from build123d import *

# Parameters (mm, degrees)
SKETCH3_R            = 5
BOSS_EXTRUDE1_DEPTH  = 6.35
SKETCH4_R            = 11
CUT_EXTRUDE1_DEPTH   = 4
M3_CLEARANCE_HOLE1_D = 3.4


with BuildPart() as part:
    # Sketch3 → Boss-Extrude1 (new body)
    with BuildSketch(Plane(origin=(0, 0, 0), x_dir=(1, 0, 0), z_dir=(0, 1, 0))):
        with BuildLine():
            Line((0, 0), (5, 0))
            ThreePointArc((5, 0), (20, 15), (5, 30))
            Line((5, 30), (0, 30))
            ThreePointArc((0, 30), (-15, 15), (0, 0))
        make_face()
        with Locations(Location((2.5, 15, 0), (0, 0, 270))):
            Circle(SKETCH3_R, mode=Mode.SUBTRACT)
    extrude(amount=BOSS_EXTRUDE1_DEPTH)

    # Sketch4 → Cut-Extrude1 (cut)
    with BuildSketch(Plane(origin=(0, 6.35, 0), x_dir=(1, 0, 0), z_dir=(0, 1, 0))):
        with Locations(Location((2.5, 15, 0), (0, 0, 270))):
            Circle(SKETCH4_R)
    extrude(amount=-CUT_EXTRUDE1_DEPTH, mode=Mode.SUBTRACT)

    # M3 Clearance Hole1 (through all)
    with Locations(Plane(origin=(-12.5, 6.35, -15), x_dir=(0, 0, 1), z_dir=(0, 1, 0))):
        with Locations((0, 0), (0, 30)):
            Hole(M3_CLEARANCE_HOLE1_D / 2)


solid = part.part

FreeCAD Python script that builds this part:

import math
import FreeCAD as App
import Part
import Sketcher
from FreeCAD import Vector
Q = App.Units.Quantity

doc = App.newDocument("Part")
body = doc.addObject("PartDesign::Body", "Body")

# Sketch on XZ plane
sketch1 = doc.addObject("Sketcher::SketchObject", "Sketch")
body.addObject(sketch1)
sketch1.AttachmentSupport = (doc.XZ_Plane, [""])
sketch1.MapMode = "FlatFace"
sketch1.addGeometry([
    Part.LineSegment(Vector(0, 0, 0), Vector(5, 0, 0)),  # 0
    Part.ArcOfCircle(Part.Circle(Vector(5, -15, 0), Vector(0, 0, 1), 15), math.radians(-90), math.radians(90)),  # 1
    Part.LineSegment(Vector(5, -30, 0), Vector(0, -30, 0)),  # 2
    Part.ArcOfCircle(Part.Circle(Vector(0, -15, 0), Vector(0, 0, 1), 15), math.radians(90), math.radians(270)),  # 3
    Part.Circle(Vector(2, -15, 0), Vector(0, 0, 1), 5),  # 4
], False)
sketch1.addConstraint([
    Sketcher.Constraint("Tangent", 0, 2, 1, 2),
    Sketcher.Constraint("Tangent", 1, 1, 2, 1),
    Sketcher.Constraint("Tangent", 2, 2, 3, 2),
    Sketcher.Constraint("Tangent", 3, 1, 0, 1),
    Sketcher.Constraint("Horizontal", 0),
    Sketcher.Constraint("Horizontal", 2),
    Sketcher.Constraint("Coincident", 3, 1, -1, 1),
    Sketcher.Constraint("Horizontal", 3, 3, 4, 3),
    Sketcher.Constraint("Diameter", 4, Q("10 mm")),
    Sketcher.Constraint("Radius", 1, Q("15 mm")),
    Sketcher.Constraint("DistanceX", 0, 1, 0, 2, Q("5 mm")),
    Sketcher.Constraint("DistanceX", -1, 1, 4, 3, Q("2.5 mm")),
])
pad1 = doc.addObject("PartDesign::Pad", "Pad")
body.addObject(pad1)
pad1.Profile = sketch1
pad1.Length = 6.35
pad1.Reversed = True

# Sketch on XZ plane
sketch2 = doc.addObject("Sketcher::SketchObject", "Sketch001")
body.addObject(sketch2)
sketch2.AttachmentSupport = (doc.XZ_Plane, [""])
sketch2.MapMode = "FlatFace"
sketch2.AttachmentOffset = App.Placement(Vector(0, 0, -6.35), App.Rotation())
sketch2.addGeometry(Part.Circle(Vector(2, -15, 0), Vector(0, 0, 1), 11), False)
sketch2.addConstraint([
    Sketcher.Constraint("Diameter", 0, Q("22 mm")),
    Sketcher.Constraint("DistanceY", 0, 3, -1, 1, Q("15 mm")),
    Sketcher.Constraint("DistanceX", -1, 1, 0, 3, Q("2.5 mm")),
])
pocket1 = doc.addObject("PartDesign::Pocket", "Pocket")
body.addObject(pocket1)
pocket1.Profile = sketch2
pocket1.Length = 4
pocket1.Reversed = True

# Sketch on XZ plane
sketch3 = doc.addObject("Sketcher::SketchObject", "Sketch002")
body.addObject(sketch3)
sketch3.AttachmentSupport = (doc.XZ_Plane, [""])
sketch3.MapMode = "FlatFace"
sketch3.AttachmentOffset = App.Placement(Vector(0, 0, -6.35), App.Rotation())
sketch3.addGeometry([
    Part.Circle(Vector(-12.5, -15, 0), Vector(0, 0, 1), 1.7),
    Part.Circle(Vector(17.5, -15, 0), Vector(0, 0, 1), 1.7),
], False)
sketch3.addConstraint([
    Sketcher.Constraint("Equal", 0, 1),
    Sketcher.Constraint("Horizontal", 0, 3, 1, 3),
    Sketcher.Constraint("Diameter", 0, Q("3.4 mm")),
    Sketcher.Constraint("DistanceY", 0, 3, -1, 1, Q("15 mm")),
    Sketcher.Constraint("DistanceX", 0, 3, 1, 3, Q("30 mm")),
    Sketcher.Constraint("DistanceX", 0, 3, -1, 1, Q("12.5 mm")),
])
doc.recompute()
hole = doc.addObject("PartDesign::Hole", "Hole")
body.addObject(hole)
hole.Profile = sketch3
hole.ThreadType = "None"
hole.Diameter = 3.4
hole.DepthType = "ThroughAll"
hole.Reversed = True

doc.recompute()
